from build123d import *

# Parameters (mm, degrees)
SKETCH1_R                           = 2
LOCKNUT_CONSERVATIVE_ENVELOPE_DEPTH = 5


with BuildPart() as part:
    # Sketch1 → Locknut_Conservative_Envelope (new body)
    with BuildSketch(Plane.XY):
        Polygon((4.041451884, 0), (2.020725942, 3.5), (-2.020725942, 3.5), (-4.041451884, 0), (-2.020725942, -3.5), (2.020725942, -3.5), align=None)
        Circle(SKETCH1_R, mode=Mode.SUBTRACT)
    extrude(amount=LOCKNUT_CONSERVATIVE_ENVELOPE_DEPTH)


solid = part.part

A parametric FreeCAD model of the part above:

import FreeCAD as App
import Part
import Sketcher
from FreeCAD import Vector
Q = App.Units.Quantity


def add_polygon(sketch, points):
    """Adds a closed chain of lines whose ends are joined by coincident constraints."""
    first, n = sketch.GeometryCount, len(points)
    for a, b in zip(points, points[1:] + points[:1]):
        sketch.addGeometry(Part.LineSegment(App.Vector(*a, 0), App.Vector(*b, 0)), False)
    for i in range(n):
        sketch.addConstraint(Sketcher.Constraint("Coincident", first + i, 2, first + (i + 1) % n, 1))

doc = App.newDocument("Part")
body = doc.addObject("PartDesign::Body", "Body")

# Sketch on XY plane
sketch1 = doc.addObject("Sketcher::SketchObject", "Sketch")
body.addObject(sketch1)
sketch1.AttachmentSupport = (doc.XY_Plane, [""])
sketch1.MapMode = "FlatFace"
add_polygon(sketch1, [(4, 0), (2, 3.5), (-2, 3.5), (-4, 0), (-2, -3.5), (2, -3.5)])  # lines 0-5
sketch1.addGeometry(Part.Circle(Vector(0, 0, 0), Vector(0, 0, 1), 2), False)  # 6
sketch1.addConstraint([
    Sketcher.Constraint("Horizontal", 1),
    Sketcher.Constraint("Horizontal", 4),
    Sketcher.Constraint("Coincident", 6, 3, -1, 1),
    Sketcher.Constraint("Symmetric", 0, 2, 3, 2, -1, 1),
    Sketcher.Constraint("Symmetric", 2, 2, 5, 2, -1, 1),
    Sketcher.Constraint("PointOnObject", 2, 2, -1),
    Sketcher.Constraint("Parallel", 2, 5),
    Sketcher.Constraint("Vertical", 1, 2, 3, 2),
    Sketcher.Constraint("Diameter", 6, Q("4 mm")),
    Sketcher.Constraint("Angle", 0, Q("120 deg")),
    Sketcher.Constraint("DistanceY", 3, 2, 1, 2, Q("7 mm")),
    Sketcher.Constraint("DistanceX", 1, 2, 1, 1, Q("4.041452 mm")),
])
pad1 = doc.addObject("PartDesign::Pad", "Pad")
body.addObject(pad1)
pad1.Profile = sketch1
pad1.Length = 5

doc.recompute()
